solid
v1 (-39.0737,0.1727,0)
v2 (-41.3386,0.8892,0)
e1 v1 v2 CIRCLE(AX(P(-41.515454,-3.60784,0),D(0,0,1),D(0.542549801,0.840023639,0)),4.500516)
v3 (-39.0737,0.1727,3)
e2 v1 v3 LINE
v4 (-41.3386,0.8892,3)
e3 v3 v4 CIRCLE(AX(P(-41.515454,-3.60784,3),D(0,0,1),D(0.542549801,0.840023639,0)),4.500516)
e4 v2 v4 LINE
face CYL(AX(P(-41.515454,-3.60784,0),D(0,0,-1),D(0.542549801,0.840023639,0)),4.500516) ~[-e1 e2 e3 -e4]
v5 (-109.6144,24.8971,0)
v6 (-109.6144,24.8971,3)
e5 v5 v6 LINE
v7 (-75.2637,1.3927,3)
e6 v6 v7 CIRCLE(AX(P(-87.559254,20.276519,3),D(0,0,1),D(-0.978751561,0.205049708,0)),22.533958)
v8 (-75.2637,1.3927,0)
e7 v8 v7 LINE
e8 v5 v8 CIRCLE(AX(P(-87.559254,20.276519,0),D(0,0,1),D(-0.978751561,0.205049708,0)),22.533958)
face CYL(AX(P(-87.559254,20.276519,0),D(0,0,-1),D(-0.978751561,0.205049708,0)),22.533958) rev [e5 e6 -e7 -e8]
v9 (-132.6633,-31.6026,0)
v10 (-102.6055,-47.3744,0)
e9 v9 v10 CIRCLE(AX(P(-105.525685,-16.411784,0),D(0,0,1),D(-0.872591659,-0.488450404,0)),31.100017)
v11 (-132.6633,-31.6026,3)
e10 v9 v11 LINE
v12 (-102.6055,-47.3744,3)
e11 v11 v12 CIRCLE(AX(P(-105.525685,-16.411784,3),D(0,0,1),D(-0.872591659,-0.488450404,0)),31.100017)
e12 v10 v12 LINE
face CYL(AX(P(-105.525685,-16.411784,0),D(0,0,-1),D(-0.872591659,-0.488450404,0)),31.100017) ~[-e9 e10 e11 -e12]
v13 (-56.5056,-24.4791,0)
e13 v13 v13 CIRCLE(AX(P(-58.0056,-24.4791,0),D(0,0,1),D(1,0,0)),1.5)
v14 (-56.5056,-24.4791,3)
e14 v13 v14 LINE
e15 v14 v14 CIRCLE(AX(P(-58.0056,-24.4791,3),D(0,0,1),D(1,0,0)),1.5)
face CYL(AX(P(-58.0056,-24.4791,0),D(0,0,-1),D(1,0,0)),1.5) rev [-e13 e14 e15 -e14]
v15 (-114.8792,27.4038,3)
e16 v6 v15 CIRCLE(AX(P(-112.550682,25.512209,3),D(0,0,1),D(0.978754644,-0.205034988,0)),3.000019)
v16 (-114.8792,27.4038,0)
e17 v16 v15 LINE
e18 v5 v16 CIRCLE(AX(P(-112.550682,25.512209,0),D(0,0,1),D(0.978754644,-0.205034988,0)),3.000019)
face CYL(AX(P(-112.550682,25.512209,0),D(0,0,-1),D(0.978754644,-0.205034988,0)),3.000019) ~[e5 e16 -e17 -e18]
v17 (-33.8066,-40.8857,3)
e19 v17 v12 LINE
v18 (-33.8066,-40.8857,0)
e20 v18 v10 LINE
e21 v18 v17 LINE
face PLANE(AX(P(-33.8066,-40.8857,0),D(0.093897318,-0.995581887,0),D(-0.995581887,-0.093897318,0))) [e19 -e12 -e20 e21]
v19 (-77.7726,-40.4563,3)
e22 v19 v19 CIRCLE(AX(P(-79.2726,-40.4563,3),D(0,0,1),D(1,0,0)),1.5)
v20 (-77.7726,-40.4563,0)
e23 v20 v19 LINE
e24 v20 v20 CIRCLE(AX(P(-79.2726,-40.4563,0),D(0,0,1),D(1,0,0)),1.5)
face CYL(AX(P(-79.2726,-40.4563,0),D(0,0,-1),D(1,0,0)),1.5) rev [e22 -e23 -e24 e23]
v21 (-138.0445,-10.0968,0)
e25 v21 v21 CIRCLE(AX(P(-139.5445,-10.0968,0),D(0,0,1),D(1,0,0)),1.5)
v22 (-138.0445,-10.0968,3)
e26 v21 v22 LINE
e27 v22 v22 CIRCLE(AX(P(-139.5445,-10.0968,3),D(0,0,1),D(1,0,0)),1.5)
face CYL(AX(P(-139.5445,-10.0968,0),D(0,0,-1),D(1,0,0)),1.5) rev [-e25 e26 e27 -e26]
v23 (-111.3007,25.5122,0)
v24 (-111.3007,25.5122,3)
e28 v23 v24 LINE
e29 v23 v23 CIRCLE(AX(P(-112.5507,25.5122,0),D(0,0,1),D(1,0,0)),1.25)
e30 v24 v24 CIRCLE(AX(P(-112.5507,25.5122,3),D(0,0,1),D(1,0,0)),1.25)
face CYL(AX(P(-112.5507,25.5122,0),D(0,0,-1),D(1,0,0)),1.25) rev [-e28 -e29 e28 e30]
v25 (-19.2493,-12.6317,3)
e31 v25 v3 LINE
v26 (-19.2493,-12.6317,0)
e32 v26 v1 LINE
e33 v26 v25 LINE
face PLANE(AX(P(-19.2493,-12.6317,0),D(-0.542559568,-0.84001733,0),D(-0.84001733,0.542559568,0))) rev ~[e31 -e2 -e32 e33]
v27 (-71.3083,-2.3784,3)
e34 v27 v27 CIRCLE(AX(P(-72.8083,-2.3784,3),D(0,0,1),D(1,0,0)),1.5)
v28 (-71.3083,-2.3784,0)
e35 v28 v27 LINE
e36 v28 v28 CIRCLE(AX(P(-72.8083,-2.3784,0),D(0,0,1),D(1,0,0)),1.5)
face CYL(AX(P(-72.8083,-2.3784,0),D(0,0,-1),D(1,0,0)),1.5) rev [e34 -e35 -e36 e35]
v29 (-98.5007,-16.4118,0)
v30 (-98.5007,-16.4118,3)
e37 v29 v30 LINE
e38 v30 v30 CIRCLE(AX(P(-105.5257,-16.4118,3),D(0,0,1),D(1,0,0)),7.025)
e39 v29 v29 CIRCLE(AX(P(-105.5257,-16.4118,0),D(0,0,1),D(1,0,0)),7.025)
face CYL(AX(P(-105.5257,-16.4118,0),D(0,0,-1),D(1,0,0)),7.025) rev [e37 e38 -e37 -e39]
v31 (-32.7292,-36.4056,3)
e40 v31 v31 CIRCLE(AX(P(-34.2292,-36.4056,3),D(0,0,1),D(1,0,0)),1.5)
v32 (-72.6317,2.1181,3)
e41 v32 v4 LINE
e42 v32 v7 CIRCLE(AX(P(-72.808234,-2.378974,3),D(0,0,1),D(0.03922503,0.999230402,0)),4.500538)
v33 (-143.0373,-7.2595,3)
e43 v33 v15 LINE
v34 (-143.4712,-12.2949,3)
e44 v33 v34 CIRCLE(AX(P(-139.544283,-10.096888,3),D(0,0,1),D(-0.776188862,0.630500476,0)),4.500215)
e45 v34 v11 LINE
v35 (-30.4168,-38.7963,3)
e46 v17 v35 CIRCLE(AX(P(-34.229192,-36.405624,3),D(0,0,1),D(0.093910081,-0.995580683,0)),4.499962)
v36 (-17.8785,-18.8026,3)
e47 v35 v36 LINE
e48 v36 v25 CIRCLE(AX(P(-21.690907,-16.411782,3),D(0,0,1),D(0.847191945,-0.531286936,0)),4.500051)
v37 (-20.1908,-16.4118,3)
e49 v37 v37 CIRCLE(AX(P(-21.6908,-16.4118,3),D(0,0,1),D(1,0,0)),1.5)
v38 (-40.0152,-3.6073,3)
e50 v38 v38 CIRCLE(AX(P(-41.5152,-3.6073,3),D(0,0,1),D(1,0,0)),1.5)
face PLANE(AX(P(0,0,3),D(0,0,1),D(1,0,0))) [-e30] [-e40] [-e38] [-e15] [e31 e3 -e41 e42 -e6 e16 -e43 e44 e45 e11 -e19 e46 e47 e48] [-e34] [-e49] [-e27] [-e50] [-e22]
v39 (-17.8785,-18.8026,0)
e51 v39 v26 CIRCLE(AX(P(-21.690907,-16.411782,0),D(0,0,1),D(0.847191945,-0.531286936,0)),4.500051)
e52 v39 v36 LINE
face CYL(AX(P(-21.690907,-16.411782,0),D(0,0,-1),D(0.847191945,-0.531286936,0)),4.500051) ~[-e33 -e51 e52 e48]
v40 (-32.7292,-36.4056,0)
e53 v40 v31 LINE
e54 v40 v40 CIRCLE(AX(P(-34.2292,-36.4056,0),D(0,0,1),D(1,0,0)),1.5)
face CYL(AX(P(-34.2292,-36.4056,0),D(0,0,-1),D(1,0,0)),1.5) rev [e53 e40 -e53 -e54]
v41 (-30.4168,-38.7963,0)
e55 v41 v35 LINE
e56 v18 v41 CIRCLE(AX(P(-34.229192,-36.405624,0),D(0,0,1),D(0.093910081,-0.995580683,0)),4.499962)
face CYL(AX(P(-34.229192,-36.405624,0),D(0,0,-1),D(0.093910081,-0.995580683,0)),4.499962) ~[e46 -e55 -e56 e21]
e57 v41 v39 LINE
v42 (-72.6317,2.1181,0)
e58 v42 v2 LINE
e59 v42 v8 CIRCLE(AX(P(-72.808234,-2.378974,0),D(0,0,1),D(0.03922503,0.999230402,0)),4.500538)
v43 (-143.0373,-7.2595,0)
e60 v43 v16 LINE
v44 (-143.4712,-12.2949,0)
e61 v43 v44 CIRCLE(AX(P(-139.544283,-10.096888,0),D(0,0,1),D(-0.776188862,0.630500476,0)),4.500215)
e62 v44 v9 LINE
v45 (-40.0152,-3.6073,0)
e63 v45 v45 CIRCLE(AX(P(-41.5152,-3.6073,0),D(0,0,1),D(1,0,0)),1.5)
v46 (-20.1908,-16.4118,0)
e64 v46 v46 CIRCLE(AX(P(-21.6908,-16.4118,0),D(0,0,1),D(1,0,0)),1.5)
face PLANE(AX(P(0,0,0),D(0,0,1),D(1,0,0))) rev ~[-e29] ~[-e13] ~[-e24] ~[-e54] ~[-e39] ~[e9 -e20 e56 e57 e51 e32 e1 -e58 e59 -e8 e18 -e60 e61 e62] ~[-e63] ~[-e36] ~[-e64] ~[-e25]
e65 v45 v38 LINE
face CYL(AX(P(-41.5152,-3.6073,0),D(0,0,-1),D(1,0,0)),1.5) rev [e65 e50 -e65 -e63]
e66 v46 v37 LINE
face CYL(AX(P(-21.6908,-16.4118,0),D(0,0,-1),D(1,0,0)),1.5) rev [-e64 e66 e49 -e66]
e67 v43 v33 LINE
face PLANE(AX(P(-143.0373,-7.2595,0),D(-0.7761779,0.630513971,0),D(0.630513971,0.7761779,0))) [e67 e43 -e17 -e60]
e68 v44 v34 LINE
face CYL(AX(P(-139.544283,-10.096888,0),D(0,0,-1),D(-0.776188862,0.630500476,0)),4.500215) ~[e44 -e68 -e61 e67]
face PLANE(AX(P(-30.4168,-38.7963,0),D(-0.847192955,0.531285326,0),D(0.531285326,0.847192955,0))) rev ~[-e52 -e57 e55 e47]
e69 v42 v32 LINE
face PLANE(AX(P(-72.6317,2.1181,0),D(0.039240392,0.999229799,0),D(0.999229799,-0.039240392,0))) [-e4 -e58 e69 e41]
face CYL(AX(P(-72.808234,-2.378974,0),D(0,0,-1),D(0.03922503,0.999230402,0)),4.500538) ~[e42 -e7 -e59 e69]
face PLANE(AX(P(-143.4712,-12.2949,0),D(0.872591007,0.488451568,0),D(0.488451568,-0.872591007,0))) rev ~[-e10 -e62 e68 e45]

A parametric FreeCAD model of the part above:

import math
import FreeCAD as App
import Part
import Sketcher

V = App.Vector
Q = App.Units.Quantity

doc = App.newDocument("Part")
params = doc.addObject("Spreadsheet::Sheet", "Params")
for row, (alias, value) in enumerate([
    ("sketch1_diameter", "3 mm"),
    ("sketch1_radius", "3 mm"),
    ("sketch1_diameter2", "2.5 mm"),
    ("sketch1_radius2", "4.5 mm"),
    ("sketch1_radius3", "31.1 mm"),
    ("pad1_length", "3 mm"),
], start=1):
    params.set(f"A{row}", alias)
    params.set(f"B{row}", "=" + value)
    params.setAlias(f"B{row}", alias)

body = doc.addObject("PartDesign::Body", "Body")

sketch1 = body.newObject("Sketcher::SketchObject", "Sketch")
sketch1.AttachmentSupport = (doc.getObject("XY_Plane"), [""])
sketch1.MapMode = "FlatFace"
sketch1.addGeometry([
    Part.LineSegment(V(-114.8792, 27.4038, 0), V(-143.0373, -7.2595, 0)),
    Part.ArcOfCircle(Part.Circle(V(-139.5445, -10.0968, 0), V(0, 0, 1), 4.499991), math.radians(140.91207), math.radians(209.239362)),
    Part.LineSegment(V(-143.4712, -12.2949, 0), V(-132.6633, -31.6026, 0)),
    Part.ArcOfCircle(Part.Circle(V(-105.5257, -16.4118, 0), V(0, 0, 1), 31.099996), math.radians(-150.76123), math.radians(-84.612156)),
    Part.LineSegment(V(-102.6055, -47.3744, 0), V(-33.8066, -40.8857, 0)),
    Part.ArcOfCircle(Part.Circle(V(-34.2292, -36.4056, 0), V(0, 0, 1), 4.499987), math.radians(-84.611334), math.radians(-32.09122)),
    Part.LineSegment(V(-30.4168, -38.7963, 0), V(-17.8785, -18.8026, 0)),
    Part.ArcOfCircle(Part.Circle(V(-21.6908, -16.4118, 0), V(0, 0, 1), 4.499951), math.radians(-32.092975), math.radians(57.142295)),
    Part.LineSegment(V(-19.2493, -12.6317, 0), V(-39.0737, 0.1727, 0)),
    Part.ArcOfCircle(Part.Circle(V(-41.5152, -3.6073, 0), V(0, 0, 1), 4.499925), math.radians(57.141604), math.radians(87.750865)),
    Part.LineSegment(V(-41.3386, 0.8892, 0), V(-72.6317, 2.1181, 0)),
    Part.ArcOfCircle(Part.Circle(V(-72.8083, -2.3784, 0), V(0, 0, 1), 4.499967), math.radians(87.750865), math.radians(123.068544)),
    Part.ArcOfCircle(Part.Circle(V(-87.5593, 20.2765, 0), V(0, 0, 1), 22.533916), math.radians(168.167521), math.radians(303.068914)),
    Part.ArcOfCircle(Part.Circle(V(-112.5507, 25.5122, 0), V(0, 0, 1), 3.000034), math.radians(-11.831313), math.radians(140.910681)),
    Part.Circle(V(-139.5445, -10.0968, 0), V(0, 0, 1), 1.5),
    Part.Circle(V(-105.5257, -16.4118, 0), V(0, 0, 1), 7.025),
    Part.Circle(V(-79.2726, -40.4563, 0), V(0, 0, 1), 1.5),
    Part.Circle(V(-34.2292, -36.4056, 0), V(0, 0, 1), 1.5),
    Part.Circle(V(-58.0056, -24.4791, 0), V(0, 0, 1), 1.5),
    Part.Circle(V(-21.6908, -16.4118, 0), V(0, 0, 1), 1.5),
    Part.Circle(V(-112.5507, 25.5122, 0), V(0, 0, 1), 1.25),
    Part.Circle(V(-72.8083, -2.3784, 0), V(0, 0, 1), 1.5),
    Part.Circle(V(-41.5152, -3.6073, 0), V(0, 0, 1), 1.5),
], False)
sketch1.addConstraint([
    Sketcher.Constraint("Tangent", 0, 2, 1, 1),
    Sketcher.Constraint("Tangent", 1, 2, 2, 1),
    Sketcher.Constraint("Tangent", 2, 2, 3, 1),
    Sketcher.Constraint("Tangent", 3, 2, 4, 1),
    Sketcher.Constraint("Tangent", 4, 2, 5, 1),
    Sketcher.Constraint("Tangent", 5, 2, 6, 1),
    Sketcher.Constraint("Tangent", 6, 2, 7, 1),
    Sketcher.Constraint("Tangent", 7, 2, 8, 1),
    Sketcher.Constraint("Tangent", 8, 2, 9, 1),
    Sketcher.Constraint("Tangent", 9, 2, 10, 1),
    Sketcher.Constraint("Tangent", 10, 2, 11, 1),
    Sketcher.Constraint("Tangent", 11, 2, 12, 2),
    Sketcher.Constraint("Tangent", 12, 1, 13, 1),
    Sketcher.Constraint("Tangent", 13, 2, 0, 1),
    Sketcher.Constraint("Coincident", 14, 3, 1, 3),
    Sketcher.Constraint("Coincident", 15, 3, 3, 3),
    Sketcher.Constraint("Coincident", 17, 3, 5, 3),
    Sketcher.Constraint("Coincident", 19, 3, 7, 3),
    Sketcher.Constraint("Coincident", 20, 3, 13, 3),
    Sketcher.Constraint("Coincident", 21, 3, 11, 3),
    Sketcher.Constraint("Coincident", 22, 3, 9, 3),
    Sketcher.Constraint("Equal", 1, 5),
    Sketcher.Constraint("Equal", 5, 7),
    Sketcher.Constraint("Equal", 7, 9),
    Sketcher.Constraint("Equal", 9, 11),
    Sketcher.Constraint("Equal", 14, 16),
    Sketcher.Constraint("Equal", 16, 17),
    Sketcher.Constraint("Equal", 17, 18),
    Sketcher.Constraint("Equal", 18, 19),
    Sketcher.Constraint("Equal", 19, 21),
    Sketcher.Constraint("Equal", 21, 22),
    Sketcher.Constraint("Horizontal", 3, 3, 7, 3),
    Sketcher.Constraint("Equal", 6, 8),
    Sketcher.Constraint("Diameter", 14, Q("3 mm")),
    Sketcher.Constraint("Radius", 13, Q("3 mm")),
    Sketcher.Constraint("Diameter", 20, Q("2.5 mm")),
    Sketcher.Constraint("Radius", 1, Q("4.5 mm")),
    Sketcher.Constraint("Radius", 3, Q("31.1 mm")),
    Sketcher.Constraint("Diameter", 15, Q("14.05 mm")),
    Sketcher.Constraint("Radius", 12, Q("22.534 mm")),
    Sketcher.Constraint("Distance", 6, Q("23.6 mm")),
    Sketcher.Constraint("Angle", 2, Q("-60.7611 deg")),
    Sketcher.Constraint("Angle", 10, Q("177.751 deg")),
    Sketcher.Constraint("DistanceX", 3, 2, 18, 3, Q("44.6 mm")),
    Sketcher.Constraint("DistanceY", 7, 3, 7, 2, Q("3.78 mm")),
    Sketcher.Constraint("DistanceX", 13, 2, 12, 3, Q("27.32 mm")),
    Sketcher.Constraint("Distance", 0, Q("44.659 mm")),
    Sketcher.Constraint("DistanceY", 18, 3, -1, 1, Q("24.479 mm")),
    Sketcher.Constraint("DistanceY", -1, 1, 10, 2, Q("2.118 mm")),
    Sketcher.Constraint("DistanceY", -1, 1, 12, 1, Q("24.897 mm")),
    Sketcher.Constraint("DistanceY", 3, 3, 1, 3, Q("6.315 mm")),
    Sketcher.Constraint("DistanceX", 3, 3, 7, 3, Q("83.835 mm")),
    Sketcher.Constraint("DistanceX", 9, 3, 5, 3, Q("7.286 mm")),
    Sketcher.Constraint("DistanceX", 3, 3, 16, 3, Q("26.253 mm")),
    Sketcher.Constraint("DistanceY", 16, 3, 11, 3, Q("38.078 mm")),
    Sketcher.Constraint("DistanceX", 1, 3, -1, 1, Q("139.5445 mm")),
])
sketch1.setExpression("Constraints[33]", "Params.sketch1_diameter")
sketch1.setExpression("Constraints[34]", "Params.sketch1_radius")
sketch1.setExpression("Constraints[35]", "Params.sketch1_diameter2")
sketch1.setExpression("Constraints[36]", "Params.sketch1_radius2")
sketch1.setExpression("Constraints[37]", "Params.sketch1_radius3")
pad1 = body.newObject("PartDesign::Pad", "Pad")
pad1.Profile = sketch1
pad1.setExpression("Length", "Params.pad1_length")

doc.recompute()
